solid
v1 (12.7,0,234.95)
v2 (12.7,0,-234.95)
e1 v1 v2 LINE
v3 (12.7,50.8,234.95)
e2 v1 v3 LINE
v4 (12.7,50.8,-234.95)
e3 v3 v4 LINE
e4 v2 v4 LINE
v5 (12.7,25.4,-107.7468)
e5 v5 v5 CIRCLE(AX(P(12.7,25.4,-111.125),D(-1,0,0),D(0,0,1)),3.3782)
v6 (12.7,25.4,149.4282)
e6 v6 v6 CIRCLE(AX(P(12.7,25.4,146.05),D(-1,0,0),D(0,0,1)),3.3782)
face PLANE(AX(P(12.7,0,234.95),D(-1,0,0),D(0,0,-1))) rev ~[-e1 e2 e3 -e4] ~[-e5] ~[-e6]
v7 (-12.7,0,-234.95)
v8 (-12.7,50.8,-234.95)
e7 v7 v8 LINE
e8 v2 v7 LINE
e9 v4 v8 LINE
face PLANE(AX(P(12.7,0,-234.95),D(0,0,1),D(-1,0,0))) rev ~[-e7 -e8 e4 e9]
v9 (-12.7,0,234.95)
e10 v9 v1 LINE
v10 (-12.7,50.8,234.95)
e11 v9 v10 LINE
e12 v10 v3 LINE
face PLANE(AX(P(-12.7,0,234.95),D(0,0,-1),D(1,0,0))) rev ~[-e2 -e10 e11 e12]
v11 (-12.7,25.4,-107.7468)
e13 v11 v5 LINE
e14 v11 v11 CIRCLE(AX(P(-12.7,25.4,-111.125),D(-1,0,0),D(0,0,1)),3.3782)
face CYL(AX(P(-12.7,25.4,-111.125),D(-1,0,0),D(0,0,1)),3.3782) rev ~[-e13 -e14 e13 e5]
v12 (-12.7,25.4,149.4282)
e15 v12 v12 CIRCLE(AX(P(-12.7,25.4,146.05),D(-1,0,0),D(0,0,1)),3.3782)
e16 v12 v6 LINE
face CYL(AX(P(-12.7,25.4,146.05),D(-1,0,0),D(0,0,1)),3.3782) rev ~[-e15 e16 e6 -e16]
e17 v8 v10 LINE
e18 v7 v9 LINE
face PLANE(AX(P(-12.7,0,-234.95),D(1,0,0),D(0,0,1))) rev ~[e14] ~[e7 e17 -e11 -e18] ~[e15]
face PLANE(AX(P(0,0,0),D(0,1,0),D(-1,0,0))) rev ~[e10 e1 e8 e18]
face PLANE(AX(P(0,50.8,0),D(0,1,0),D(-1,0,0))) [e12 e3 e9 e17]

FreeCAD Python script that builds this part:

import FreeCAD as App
import Part
import Sketcher
from FreeCAD import Vector
Q = App.Units.Quantity


def add_polygon(sketch, points):
    """Adds a closed chain of lines whose ends are joined by coincident constraints."""
    first, n = sketch.GeometryCount, len(points)
    for a, b in zip(points, points[1:] + points[:1]):
        sketch.addGeometry(Part.LineSegment(App.Vector(*a, 0), App.Vector(*b, 0)), False)
    for i in range(n):
        sketch.addConstraint(Sketcher.Constraint("Coincident", first + i, 2, first + (i + 1) % n, 1))

doc = App.newDocument("Part")
body = doc.addObject("PartDesign::Body", "Body")

# Sketch on XZ plane
sketch1 = body.newObject("Sketcher::SketchObject", "Sketch")
sketch1.AttachmentSupport = (doc.getObject("XZ_Plane"), [""])
sketch1.MapMode = "FlatFace"
add_polygon(sketch1, [(-13, -235), (-13, 235), (13, 235), (13, -235)])  # lines 0-3
sketch1.addConstraint(Sketcher.Constraint("Vertical", 0))
sketch1.addConstraint(Sketcher.Constraint("Horizontal", 1))
sketch1.addConstraint(Sketcher.Constraint("Vertical", 2))
sketch1.addConstraint(Sketcher.Constraint("Horizontal", 3))
sketch1.addConstraint(Sketcher.Constraint("Symmetric", 0, 2, 2, 2, -1, 1))
sketch1.addConstraint(Sketcher.Constraint("DistanceX", 1, 1, 1, 2, Q("1 in")))
sketch1.addConstraint(Sketcher.Constraint("DistanceY", 0, 1, 0, 2, Q("18.5 in")))
pad1 = body.newObject("PartDesign::Pad", "Pad")
pad1.Profile = sketch1
pad1.Length = Q("2 in")
pad1.Reversed = True

# Sketch on YZ plane
sketch2 = body.newObject("Sketcher::SketchObject", "Sketch001")
sketch2.AttachmentSupport = (doc.getObject("YZ_Plane"), [""])
sketch2.MapMode = "FlatFace"
sketch2.AttachmentOffset = App.Placement(Vector(0, 0, -0.5 * 25.4), App.Rotation())
sketch2.addGeometry(Part.Circle(Vector(25.4, -111.1, 0), Vector(0, 0, 1), 3.4), False)
sketch2.addGeometry(Part.Circle(Vector(25.4, 146.1, 0), Vector(0, 0, 1), 3.4), False)
sketch2.addConstraint(Sketcher.Constraint("Equal", 0, 1))
sketch2.addConstraint(Sketcher.Constraint("Vertical", 0, 3, 1, 3))
sketch2.addConstraint(Sketcher.Constraint("Diameter", 0, Q("0.266 in")))
sketch2.addConstraint(Sketcher.Constraint("DistanceX", -1, 1, 0, 3, Q("1 in")))
sketch2.addConstraint(Sketcher.Constraint("DistanceY", 0, 3, 1, 3, Q("10.125 in")))
sketch2.addConstraint(Sketcher.Constraint("DistanceY", -1, 1, 1, 3, Q("5.75 in")))
pocket1 = body.newObject("PartDesign::Pocket", "Pocket")
pocket1.Profile = sketch2
pocket1.Type = "ThroughAll"
pocket1.Reversed = True

doc.recompute()
